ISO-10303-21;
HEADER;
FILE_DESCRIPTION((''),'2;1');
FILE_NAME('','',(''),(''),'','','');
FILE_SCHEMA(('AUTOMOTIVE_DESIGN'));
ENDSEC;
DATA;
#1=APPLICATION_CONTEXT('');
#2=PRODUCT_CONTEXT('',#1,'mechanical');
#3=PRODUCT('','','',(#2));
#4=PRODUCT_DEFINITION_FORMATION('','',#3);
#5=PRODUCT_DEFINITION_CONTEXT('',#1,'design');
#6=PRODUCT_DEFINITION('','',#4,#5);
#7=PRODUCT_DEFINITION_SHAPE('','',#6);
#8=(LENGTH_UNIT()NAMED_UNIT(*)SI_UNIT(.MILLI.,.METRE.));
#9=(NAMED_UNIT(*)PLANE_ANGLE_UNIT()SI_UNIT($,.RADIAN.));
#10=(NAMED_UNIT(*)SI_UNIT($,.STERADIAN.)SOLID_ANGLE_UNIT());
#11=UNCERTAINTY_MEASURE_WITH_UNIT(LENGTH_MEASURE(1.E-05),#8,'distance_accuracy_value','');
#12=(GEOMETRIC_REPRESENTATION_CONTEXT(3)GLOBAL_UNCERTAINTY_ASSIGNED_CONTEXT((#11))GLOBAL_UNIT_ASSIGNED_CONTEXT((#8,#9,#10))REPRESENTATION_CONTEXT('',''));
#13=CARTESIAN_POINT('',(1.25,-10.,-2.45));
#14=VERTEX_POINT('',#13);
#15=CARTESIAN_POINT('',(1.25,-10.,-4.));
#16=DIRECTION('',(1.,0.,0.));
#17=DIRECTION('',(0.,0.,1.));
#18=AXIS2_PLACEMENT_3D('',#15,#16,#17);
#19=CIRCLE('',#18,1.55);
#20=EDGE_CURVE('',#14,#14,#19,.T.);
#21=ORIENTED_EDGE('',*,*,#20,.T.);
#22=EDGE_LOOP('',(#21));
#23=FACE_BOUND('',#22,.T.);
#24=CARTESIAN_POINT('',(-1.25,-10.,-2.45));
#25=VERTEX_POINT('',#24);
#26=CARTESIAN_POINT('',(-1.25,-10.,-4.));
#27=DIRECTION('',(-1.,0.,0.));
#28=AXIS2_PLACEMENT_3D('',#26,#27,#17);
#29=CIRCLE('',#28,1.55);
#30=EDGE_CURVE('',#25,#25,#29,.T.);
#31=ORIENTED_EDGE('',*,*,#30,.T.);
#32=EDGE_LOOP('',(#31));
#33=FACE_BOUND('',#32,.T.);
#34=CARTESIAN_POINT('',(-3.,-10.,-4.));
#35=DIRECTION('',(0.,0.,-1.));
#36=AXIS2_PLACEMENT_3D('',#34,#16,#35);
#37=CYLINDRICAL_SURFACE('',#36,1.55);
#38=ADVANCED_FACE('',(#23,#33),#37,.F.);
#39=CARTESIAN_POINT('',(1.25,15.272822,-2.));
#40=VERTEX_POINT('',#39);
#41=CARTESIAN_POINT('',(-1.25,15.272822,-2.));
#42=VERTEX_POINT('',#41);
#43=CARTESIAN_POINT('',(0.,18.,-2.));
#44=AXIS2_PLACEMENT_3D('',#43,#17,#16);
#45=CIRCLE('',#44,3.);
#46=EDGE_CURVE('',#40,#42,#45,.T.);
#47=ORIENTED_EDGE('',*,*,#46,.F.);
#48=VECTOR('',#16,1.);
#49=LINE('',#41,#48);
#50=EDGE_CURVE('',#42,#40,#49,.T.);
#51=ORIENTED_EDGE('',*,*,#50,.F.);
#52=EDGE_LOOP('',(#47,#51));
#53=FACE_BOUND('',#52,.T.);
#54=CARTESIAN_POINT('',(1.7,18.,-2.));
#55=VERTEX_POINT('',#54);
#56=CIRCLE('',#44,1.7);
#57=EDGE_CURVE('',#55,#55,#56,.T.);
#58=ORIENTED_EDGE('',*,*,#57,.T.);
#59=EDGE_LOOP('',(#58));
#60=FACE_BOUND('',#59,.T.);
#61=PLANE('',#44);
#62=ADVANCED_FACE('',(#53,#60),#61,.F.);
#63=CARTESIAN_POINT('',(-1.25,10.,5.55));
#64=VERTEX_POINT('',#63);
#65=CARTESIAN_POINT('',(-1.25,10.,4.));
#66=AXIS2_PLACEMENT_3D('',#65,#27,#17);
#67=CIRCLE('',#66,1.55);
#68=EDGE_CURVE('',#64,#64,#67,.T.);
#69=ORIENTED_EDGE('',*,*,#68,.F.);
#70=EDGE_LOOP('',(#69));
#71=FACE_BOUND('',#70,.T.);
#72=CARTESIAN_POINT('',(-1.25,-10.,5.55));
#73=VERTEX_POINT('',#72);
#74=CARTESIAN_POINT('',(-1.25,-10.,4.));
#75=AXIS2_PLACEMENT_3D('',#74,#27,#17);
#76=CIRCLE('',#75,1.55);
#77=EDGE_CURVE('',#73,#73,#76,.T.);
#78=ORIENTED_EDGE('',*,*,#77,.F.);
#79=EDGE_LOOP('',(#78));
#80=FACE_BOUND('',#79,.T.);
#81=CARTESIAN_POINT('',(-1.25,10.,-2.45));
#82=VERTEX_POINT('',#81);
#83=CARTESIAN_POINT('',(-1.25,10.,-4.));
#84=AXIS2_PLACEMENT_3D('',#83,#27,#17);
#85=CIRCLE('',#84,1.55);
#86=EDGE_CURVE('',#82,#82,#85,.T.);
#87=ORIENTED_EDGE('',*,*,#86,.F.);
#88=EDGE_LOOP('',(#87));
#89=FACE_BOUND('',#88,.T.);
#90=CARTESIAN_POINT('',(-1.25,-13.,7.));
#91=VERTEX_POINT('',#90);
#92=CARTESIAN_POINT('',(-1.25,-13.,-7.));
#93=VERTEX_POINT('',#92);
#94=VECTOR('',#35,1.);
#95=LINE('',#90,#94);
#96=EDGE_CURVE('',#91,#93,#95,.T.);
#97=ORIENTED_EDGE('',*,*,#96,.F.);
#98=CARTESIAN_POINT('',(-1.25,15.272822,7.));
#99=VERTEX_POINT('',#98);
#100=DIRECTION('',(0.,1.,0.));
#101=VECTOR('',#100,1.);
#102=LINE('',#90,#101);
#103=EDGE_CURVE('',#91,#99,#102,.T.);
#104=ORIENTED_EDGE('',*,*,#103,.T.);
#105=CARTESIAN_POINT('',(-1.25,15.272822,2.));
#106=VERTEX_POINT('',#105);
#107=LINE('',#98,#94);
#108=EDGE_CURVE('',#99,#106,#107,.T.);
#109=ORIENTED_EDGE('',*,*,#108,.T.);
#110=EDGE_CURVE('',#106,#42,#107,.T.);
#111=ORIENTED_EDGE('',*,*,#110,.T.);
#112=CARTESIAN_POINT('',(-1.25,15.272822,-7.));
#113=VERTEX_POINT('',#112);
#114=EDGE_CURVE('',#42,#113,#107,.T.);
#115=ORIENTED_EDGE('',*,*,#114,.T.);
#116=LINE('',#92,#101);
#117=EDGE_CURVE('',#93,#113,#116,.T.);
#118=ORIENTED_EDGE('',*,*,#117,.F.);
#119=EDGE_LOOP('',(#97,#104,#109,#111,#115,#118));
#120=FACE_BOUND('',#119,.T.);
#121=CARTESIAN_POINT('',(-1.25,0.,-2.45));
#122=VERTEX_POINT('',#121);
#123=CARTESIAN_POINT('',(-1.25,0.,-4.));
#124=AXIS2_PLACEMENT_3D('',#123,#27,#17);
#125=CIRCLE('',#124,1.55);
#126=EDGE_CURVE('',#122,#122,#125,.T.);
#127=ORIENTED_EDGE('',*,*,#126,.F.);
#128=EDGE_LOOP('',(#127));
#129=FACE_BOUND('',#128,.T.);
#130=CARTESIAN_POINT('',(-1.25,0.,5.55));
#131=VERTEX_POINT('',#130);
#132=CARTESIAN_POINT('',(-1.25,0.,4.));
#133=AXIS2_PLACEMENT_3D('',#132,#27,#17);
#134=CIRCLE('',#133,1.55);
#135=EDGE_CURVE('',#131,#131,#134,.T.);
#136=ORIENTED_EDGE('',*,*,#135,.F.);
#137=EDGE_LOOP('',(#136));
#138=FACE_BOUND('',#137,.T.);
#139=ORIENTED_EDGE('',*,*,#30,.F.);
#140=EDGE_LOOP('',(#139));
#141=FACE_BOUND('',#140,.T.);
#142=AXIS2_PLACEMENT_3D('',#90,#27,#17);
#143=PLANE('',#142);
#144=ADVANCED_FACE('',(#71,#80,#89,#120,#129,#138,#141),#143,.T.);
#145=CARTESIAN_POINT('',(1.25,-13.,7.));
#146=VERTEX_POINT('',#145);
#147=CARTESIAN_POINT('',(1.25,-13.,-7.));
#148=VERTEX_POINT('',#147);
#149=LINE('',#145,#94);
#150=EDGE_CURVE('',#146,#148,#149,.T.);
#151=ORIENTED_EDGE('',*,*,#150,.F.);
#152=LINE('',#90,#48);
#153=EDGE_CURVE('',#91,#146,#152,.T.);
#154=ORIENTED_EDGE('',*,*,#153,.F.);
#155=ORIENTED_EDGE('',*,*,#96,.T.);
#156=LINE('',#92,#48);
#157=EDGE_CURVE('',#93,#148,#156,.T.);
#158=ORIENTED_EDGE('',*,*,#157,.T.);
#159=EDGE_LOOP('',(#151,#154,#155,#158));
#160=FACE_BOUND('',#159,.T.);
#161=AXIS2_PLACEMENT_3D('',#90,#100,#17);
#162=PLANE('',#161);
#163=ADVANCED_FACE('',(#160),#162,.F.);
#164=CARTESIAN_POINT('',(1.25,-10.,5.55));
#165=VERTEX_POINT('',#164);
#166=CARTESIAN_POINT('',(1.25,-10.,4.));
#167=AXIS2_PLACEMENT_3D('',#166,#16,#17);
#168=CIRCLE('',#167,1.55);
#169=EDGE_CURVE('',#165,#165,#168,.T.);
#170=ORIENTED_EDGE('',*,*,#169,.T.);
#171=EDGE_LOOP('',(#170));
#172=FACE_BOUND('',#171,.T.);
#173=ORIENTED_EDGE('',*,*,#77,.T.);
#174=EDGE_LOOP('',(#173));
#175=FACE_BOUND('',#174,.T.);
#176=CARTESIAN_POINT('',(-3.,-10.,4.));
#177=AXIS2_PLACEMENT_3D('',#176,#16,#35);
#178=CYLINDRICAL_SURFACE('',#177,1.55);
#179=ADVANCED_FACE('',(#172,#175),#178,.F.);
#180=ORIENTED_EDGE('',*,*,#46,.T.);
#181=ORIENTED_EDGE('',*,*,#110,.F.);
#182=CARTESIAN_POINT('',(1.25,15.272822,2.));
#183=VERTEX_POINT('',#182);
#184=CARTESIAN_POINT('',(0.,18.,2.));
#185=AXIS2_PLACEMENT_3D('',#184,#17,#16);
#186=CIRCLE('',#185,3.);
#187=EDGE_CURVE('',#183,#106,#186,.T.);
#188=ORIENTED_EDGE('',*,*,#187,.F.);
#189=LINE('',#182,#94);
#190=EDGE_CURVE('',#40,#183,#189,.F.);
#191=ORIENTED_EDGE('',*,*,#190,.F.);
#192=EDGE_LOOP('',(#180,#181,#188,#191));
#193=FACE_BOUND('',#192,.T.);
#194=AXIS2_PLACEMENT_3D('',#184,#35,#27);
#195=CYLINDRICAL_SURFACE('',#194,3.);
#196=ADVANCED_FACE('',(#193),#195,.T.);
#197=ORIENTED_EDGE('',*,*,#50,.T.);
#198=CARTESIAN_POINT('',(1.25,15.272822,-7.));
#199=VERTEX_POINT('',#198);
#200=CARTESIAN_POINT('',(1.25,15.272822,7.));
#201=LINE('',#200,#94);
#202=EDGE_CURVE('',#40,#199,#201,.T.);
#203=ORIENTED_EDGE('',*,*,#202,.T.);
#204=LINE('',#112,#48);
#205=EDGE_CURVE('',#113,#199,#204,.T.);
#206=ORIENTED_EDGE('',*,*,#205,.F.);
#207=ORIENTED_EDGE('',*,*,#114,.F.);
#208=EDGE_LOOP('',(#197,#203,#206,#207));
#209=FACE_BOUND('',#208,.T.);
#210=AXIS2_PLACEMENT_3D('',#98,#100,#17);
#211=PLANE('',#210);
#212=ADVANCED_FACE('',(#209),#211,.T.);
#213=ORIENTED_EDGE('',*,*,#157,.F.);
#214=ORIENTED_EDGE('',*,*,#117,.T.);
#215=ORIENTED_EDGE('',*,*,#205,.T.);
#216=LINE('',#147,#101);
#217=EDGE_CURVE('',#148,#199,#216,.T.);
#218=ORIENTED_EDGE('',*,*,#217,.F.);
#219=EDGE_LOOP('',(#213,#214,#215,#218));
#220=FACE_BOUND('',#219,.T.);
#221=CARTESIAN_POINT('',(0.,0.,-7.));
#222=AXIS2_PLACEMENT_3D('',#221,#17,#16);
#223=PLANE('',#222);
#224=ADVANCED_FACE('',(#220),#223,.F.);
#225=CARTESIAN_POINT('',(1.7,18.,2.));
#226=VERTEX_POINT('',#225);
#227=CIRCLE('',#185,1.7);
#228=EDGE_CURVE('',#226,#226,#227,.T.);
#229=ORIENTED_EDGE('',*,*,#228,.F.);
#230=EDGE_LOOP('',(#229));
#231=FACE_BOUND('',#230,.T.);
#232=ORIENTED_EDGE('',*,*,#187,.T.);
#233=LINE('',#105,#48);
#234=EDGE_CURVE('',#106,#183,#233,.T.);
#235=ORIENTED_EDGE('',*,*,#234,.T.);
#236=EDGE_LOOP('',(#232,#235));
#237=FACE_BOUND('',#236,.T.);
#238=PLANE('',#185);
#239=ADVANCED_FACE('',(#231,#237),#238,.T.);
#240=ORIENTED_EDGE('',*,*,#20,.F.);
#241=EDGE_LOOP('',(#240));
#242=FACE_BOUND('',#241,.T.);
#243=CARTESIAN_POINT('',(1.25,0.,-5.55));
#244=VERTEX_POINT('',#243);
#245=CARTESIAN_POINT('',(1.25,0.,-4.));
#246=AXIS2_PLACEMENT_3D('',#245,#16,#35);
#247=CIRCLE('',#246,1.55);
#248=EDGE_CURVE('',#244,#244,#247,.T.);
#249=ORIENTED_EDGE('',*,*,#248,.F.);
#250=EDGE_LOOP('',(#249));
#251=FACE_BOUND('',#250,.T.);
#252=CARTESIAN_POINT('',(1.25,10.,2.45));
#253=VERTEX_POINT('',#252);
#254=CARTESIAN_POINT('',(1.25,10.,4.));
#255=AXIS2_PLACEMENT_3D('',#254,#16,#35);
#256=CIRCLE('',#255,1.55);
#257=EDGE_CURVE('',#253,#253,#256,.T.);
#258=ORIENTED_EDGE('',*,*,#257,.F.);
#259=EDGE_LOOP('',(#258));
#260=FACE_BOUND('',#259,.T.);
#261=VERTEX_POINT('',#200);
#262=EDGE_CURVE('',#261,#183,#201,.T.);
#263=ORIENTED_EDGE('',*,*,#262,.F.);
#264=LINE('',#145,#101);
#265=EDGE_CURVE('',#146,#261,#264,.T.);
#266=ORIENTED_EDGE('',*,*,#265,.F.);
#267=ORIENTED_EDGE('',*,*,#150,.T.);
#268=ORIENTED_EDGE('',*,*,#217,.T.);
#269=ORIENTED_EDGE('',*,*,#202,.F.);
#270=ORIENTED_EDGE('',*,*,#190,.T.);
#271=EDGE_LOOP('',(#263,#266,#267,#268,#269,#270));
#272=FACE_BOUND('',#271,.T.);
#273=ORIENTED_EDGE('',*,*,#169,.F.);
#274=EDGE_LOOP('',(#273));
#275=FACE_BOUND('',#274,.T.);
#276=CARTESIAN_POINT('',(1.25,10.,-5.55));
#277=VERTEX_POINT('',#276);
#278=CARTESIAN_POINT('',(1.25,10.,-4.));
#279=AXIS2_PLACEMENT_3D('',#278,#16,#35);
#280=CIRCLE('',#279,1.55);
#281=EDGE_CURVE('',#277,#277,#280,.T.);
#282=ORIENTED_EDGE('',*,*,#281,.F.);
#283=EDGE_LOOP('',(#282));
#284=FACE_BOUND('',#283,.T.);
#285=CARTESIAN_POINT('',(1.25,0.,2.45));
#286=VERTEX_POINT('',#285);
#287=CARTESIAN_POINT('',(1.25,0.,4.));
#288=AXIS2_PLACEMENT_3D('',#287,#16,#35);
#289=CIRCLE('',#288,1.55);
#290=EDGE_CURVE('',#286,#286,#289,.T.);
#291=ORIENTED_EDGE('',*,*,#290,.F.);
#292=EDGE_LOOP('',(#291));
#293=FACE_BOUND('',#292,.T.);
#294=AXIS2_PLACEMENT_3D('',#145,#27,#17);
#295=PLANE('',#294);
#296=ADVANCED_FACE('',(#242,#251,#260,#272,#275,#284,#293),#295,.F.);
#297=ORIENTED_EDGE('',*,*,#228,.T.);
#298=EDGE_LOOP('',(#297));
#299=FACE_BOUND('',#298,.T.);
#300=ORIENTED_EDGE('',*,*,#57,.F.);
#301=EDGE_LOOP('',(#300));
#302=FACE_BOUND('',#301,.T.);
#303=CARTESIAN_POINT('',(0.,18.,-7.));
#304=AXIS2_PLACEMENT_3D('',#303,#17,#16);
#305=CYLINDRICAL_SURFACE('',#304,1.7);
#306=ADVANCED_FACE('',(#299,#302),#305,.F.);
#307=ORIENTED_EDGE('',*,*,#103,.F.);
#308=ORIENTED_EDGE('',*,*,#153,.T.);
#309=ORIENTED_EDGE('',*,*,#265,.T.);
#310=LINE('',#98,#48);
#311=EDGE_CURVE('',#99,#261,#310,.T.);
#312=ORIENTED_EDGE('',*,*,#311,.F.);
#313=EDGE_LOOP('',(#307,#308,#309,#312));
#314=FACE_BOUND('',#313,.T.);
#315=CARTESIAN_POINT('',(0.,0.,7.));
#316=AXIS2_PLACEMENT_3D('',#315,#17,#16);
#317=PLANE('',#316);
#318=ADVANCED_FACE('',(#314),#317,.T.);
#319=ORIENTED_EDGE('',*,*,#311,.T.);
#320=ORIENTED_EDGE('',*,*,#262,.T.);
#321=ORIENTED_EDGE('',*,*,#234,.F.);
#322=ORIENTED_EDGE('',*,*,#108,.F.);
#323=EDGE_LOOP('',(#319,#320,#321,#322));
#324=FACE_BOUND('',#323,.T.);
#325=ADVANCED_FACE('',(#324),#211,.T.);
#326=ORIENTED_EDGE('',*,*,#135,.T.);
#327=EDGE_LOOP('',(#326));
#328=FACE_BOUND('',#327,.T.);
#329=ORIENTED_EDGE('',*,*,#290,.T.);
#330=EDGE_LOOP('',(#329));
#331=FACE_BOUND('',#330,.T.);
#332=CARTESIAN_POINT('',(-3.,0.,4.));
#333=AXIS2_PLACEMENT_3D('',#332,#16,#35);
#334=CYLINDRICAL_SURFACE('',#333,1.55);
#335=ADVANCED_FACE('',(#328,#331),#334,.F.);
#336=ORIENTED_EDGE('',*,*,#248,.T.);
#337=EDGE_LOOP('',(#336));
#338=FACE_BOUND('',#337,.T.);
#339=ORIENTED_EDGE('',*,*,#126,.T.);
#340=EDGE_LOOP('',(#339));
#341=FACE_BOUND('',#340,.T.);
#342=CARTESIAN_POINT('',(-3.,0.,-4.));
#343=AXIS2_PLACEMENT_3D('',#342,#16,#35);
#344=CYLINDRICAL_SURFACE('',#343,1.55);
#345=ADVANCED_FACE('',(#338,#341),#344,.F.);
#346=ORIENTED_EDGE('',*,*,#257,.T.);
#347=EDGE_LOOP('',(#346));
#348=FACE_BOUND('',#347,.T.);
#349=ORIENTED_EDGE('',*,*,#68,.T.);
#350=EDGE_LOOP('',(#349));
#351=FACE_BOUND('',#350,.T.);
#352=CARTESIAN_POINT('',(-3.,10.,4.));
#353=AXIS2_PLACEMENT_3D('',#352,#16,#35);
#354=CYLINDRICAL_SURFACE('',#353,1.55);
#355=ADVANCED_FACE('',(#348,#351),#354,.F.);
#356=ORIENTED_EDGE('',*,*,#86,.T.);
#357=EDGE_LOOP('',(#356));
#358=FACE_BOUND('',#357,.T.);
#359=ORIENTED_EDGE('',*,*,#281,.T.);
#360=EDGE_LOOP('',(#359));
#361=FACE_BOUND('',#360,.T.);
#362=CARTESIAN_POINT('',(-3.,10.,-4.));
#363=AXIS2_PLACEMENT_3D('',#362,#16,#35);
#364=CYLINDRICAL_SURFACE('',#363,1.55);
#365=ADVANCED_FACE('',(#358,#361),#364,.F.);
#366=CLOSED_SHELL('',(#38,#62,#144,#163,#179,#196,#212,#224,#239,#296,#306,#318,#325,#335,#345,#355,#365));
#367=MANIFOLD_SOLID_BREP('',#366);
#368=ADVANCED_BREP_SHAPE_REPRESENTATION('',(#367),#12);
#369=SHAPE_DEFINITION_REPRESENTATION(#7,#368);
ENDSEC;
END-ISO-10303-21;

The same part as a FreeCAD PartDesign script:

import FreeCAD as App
import Part
import Sketcher

V = App.Vector
Q = App.Units.Quantity

doc = App.newDocument("Part")
params = doc.addObject("Spreadsheet::Sheet", "Params")
for row, (alias, value) in enumerate([
    ("sketch1_width", "2.5 mm"),
    ("pad1_length", "14 mm"),
    ("sketch2_diameter", "6 mm"),
    ("pad2_length", "4 mm"),
    ("sketch3_diameter", "3.4 mm"),
    ("sketch4_diameter", "3.1 mm"),
], start=1):
    params.set(f"A{row}", alias)
    params.set(f"B{row}", "=" + value)
    params.setAlias(f"B{row}", alias)

body = doc.addObject("PartDesign::Body", "Body")

# Sketch on XY plane
sketch1 = body.newObject("Sketcher::SketchObject", "Sketch")
sketch1.AttachmentSupport = (doc.getObject("XY_Plane"), [""])
sketch1.MapMode = "FlatFace"
sketch1.addGeometry(Part.LineSegment(V(-1.2, 15.3, 0), V(-1.2, -13, 0)), False)
sketch1.addGeometry(Part.LineSegment(V(-1.2, -13, 0), V(1.2, -13, 0)), False)
sketch1.addGeometry(Part.LineSegment(V(1.2, -13, 0), V(1.2, 15.3, 0)), False)
sketch1.addGeometry(Part.LineSegment(V(1.2, 15.3, 0), V(-1.2, 15.3, 0)), False)
sketch1.addConstraint(Sketcher.Constraint("Coincident", 0, 2, 1, 1))
sketch1.addConstraint(Sketcher.Constraint("Coincident", 1, 2, 2, 1))
sketch1.addConstraint(Sketcher.Constraint("Coincident", 2, 2, 3, 1))
sketch1.addConstraint(Sketcher.Constraint("Coincident", 3, 2, 0, 1))
sketch1.addConstraint(Sketcher.Constraint("Vertical", 0))
sketch1.addConstraint(Sketcher.Constraint("Horizontal", 1))
sketch1.addConstraint(Sketcher.Constraint("Vertical", 2))
sketch1.addConstraint(Sketcher.Constraint("Horizontal", 3))
sketch1.addConstraint(Sketcher.Constraint("DistanceX", 1, 1, 1, 2, Q("2.5 mm")))
sketch1.addConstraint(Sketcher.Constraint("DistanceY", 0, 2, -1, 1, Q("13 mm")))
sketch1.addConstraint(Sketcher.Constraint("DistanceX", 0, 2, -1, 1, Q("1.25 mm")))
sketch1.addConstraint(Sketcher.Constraint("DistanceY", 0, 2, 0, 1, Q("28.272822 mm")))
sketch1.setExpression("Constraints[8]", "Params.sketch1_width")
pad1 = body.newObject("PartDesign::Pad", "Pad")
pad1.Profile = sketch1
pad1.setExpression("Length", "Params.pad1_length")
pad1.Midplane = True

# Sketch on XY plane
sketch2 = body.newObject("Sketcher::SketchObject", "Sketch001")
sketch2.AttachmentSupport = (doc.getObject("XY_Plane"), [""])
sketch2.MapMode = "FlatFace"
sketch2.addGeometry(Part.Circle(V(0, 18, 0), V(0, 0, 1), 3), False)
sketch2.addConstraint(Sketcher.Constraint("PointOnObject", 0, 3, -2))
sketch2.addConstraint(Sketcher.Constraint("Diameter", 0, Q("6 mm")))
sketch2.addConstraint(Sketcher.Constraint("DistanceY", -1, 1, 0, 3, Q("18 mm")))
sketch2.setExpression("Constraints[1]", "Params.sketch2_diameter")
pad2 = body.newObject("PartDesign::Pad", "Pad001")
pad2.Profile = sketch2
pad2.setExpression("Length", "Params.pad2_length")
pad2.Midplane = True

# Sketch on XY plane
sketch3 = body.newObject("Sketcher::SketchObject", "Sketch002")
sketch3.AttachmentSupport = (doc.getObject("XY_Plane"), [""])
sketch3.MapMode = "FlatFace"
sketch3.AttachmentOffset = App.Placement(V(0, 0, 2), App.Rotation())
sketch3.addGeometry(Part.Circle(V(0, 18, 0), V(0, 0, 1), 1.7), False)
sketch3.addConstraint(Sketcher.Constraint("PointOnObject", 0, 3, -2))
sketch3.addConstraint(Sketcher.Constraint("Diameter", 0, Q("3.4 mm")))
sketch3.addConstraint(Sketcher.Constraint("DistanceY", -1, 1, 0, 3, Q("18 mm")))
sketch3.setExpression("Constraints[1]", "Params.sketch3_diameter")
pocket1 = body.newObject("PartDesign::Pocket", "Pocket")
pocket1.Profile = sketch3
pocket1.Type = "ThroughAll"

# Sketch on YZ plane
sketch4 = body.newObject("Sketcher::SketchObject", "Sketch003")
sketch4.AttachmentSupport = (doc.getObject("YZ_Plane"), [""])
sketch4.MapMode = "FlatFace"
sketch4.AttachmentOffset = App.Placement(V(0, 0, 1.25), App.Rotation())
sketch4.addGeometry(Part.Circle(V(0, -4, 0), V(0, 0, 1), 1.6), False)
sketch4.addGeometry(Part.Circle(V(0, 4, 0), V(0, 0, 1), 1.6), False)
sketch4.addGeometry(Part.Circle(V(10, 4, 0), V(0, 0, 1), 1.6), False)
sketch4.addGeometry(Part.Circle(V(10, -4, 0), V(0, 0, 1), 1.6), False)
sketch4.addGeometry(Part.Circle(V(-10, -4, 0), V(0, 0, 1), 1.6), False)
sketch4.addGeometry(Part.Circle(V(-10, 4, 0), V(0, 0, 1), 1.6), False)
sketch4.addConstraint(Sketcher.Constraint("Equal", 0, 1))
sketch4.addConstraint(Sketcher.Constraint("Equal", 1, 2))
sketch4.addConstraint(Sketcher.Constraint("Equal", 2, 3))
sketch4.addConstraint(Sketcher.Constraint("Equal", 3, 4))
sketch4.addConstraint(Sketcher.Constraint("Equal", 4, 5))
sketch4.addConstraint(Sketcher.Constraint("Symmetric", 0, 3, 1, 3, -1, 1))
sketch4.addConstraint(Sketcher.Constraint("Symmetric", 2, 3, 4, 3, -1, 1))
sketch4.addConstraint(Sketcher.Constraint("Symmetric", 3, 3, 5, 3, -1, 1))
sketch4.addConstraint(Sketcher.Constraint("Symmetric", 3, 3, 4, 3, -2))
sketch4.addConstraint(Sketcher.Constraint("PointOnObject", 0, 3, -2))
sketch4.addConstraint(Sketcher.Constraint("Horizontal", 1, 3, 2, 3))
sketch4.addConstraint(Sketcher.Constraint("Diameter", 0, Q("3.1 mm")))
sketch4.addConstraint(Sketcher.Constraint("DistanceY", 0, 3, -1, 1, Q("4 mm")))
sketch4.addConstraint(Sketcher.Constraint("DistanceX", -1, 1, 2, 3, Q("10 mm")))
sketch4.setExpression("Constraints[11]", "Params.sketch4_diameter")
pocket2 = body.newObject("PartDesign::Pocket", "Pocket001")
pocket2.Profile = sketch4
pocket2.Type = "ThroughAll"

doc.recompute()
